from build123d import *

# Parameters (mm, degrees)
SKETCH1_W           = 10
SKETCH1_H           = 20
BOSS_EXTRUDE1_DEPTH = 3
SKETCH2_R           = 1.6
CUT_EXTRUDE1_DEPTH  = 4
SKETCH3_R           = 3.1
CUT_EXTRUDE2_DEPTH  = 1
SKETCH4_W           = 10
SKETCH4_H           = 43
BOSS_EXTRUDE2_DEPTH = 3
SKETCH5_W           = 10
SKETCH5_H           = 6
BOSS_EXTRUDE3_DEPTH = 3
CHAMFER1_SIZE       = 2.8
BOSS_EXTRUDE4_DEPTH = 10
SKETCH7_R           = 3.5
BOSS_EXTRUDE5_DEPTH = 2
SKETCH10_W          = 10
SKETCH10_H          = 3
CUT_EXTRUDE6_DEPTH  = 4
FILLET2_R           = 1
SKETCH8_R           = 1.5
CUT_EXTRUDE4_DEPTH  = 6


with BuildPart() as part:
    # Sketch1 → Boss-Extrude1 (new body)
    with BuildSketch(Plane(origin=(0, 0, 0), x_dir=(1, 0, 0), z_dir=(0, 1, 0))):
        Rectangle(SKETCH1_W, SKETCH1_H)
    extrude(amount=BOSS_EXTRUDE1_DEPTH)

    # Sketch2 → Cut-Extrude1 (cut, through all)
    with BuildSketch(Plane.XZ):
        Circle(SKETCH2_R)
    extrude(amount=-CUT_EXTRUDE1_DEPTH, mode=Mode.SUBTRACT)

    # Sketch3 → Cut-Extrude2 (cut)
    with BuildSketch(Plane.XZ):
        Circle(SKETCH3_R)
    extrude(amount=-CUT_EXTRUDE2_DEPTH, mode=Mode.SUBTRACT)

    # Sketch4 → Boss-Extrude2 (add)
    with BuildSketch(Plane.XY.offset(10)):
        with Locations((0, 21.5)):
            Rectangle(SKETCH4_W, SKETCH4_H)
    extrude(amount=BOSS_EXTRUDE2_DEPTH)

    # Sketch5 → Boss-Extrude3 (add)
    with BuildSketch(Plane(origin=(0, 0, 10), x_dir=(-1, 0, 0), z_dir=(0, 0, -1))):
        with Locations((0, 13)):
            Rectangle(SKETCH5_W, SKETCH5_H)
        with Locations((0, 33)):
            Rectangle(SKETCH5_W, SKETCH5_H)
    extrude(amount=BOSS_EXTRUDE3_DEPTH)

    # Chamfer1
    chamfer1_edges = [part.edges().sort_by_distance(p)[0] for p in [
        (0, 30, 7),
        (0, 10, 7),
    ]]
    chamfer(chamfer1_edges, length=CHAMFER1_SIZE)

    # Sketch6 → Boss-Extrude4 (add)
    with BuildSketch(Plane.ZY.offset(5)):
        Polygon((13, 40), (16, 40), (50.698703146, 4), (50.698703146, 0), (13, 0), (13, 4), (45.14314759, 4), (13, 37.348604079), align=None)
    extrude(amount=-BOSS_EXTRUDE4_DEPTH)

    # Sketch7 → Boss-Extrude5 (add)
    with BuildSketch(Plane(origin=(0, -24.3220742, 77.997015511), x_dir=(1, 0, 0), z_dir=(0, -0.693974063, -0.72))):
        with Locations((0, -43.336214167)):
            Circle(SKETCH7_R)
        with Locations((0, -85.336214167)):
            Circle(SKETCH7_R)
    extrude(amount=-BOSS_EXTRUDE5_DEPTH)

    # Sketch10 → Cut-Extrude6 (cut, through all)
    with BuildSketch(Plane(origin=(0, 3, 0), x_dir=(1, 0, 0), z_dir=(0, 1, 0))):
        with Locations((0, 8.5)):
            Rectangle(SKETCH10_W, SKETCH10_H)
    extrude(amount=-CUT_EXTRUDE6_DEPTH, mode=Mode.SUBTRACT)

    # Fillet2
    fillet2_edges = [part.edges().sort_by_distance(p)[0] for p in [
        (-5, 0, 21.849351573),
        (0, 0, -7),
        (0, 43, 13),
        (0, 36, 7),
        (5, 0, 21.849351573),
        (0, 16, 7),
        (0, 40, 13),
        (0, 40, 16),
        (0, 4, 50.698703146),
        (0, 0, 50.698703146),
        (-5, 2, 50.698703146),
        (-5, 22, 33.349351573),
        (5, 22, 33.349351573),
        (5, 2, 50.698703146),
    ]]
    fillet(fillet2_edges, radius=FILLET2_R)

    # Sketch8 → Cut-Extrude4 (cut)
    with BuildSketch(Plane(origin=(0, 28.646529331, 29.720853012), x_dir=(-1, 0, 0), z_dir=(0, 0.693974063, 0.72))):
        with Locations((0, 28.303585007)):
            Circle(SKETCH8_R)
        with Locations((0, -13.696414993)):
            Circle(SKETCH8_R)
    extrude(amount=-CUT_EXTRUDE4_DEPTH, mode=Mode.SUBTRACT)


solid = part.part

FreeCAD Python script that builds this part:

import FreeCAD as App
import Part
import Sketcher
from FreeCAD import Vector
Q = App.Units.Quantity


def edges_at(feature, points):
    """Names of the edges that pass closest to the given points."""
    edges = feature.Shape.Edges
    near = lambda p: min(range(len(edges)), key=lambda i: edges[i].distToShape(Part.Vertex(*p))[0])
    return sorted({f"Edge{near(p) + 1}" for p in points})

doc = App.newDocument("Part")
body = doc.addObject("PartDesign::Body", "Body")

sketch1 = body.newObject("Sketcher::SketchObject", "Sketch")
sketch1.AttachmentSupport = (doc.getObject("XZ_Plane"), [""])
sketch1.MapMode = "FlatFace"
sketch1.addGeometry([
    Part.LineSegment(Vector(-5, -10, 0), Vector(-5, 10, 0)),
    Part.LineSegment(Vector(-5, 10, 0), Vector(5, 10, 0)),
    Part.LineSegment(Vector(5, 10, 0), Vector(5, -10, 0)),
    Part.LineSegment(Vector(5, -10, 0), Vector(-5, -10, 0)),
], False)
sketch1.addConstraint([
    Sketcher.Constraint("Coincident", 0, 2, 1, 1),
    Sketcher.Constraint("Coincident", 1, 2, 2, 1),
    Sketcher.Constraint("Coincident", 2, 2, 3, 1),
    Sketcher.Constraint("Coincident", 3, 2, 0, 1),
    Sketcher.Constraint("Vertical", 0),
    Sketcher.Constraint("Horizontal", 1),
    Sketcher.Constraint("Vertical", 2),
    Sketcher.Constraint("Horizontal", 3),
    Sketcher.Constraint("Symmetric", 0, 2, 2, 2, -1, 1),
    Sketcher.Constraint("DistanceX", 1, 1, 1, 2, Q("10 mm")),
    Sketcher.Constraint("DistanceY", 0, 1, 0, 2, Q("20 mm")),
])
pad1 = body.newObject("PartDesign::Pad", "Pad")
pad1.Profile = sketch1
pad1.Length = 3
pad1.Reversed = True

sketch2 = body.newObject("Sketcher::SketchObject", "Sketch001")
sketch2.AttachmentSupport = (doc.getObject("XZ_Plane"), [""])
sketch2.MapMode = "FlatFace"
sketch2.addGeometry(Part.Circle(Vector(0, 0, 0), Vector(0, 0, 1), 1.6), False)
sketch2.addConstraint([
    Sketcher.Constraint("Coincident", 0, 3, -1, 1),
    Sketcher.Constraint("Diameter", 0, Q("3.2 mm")),
])
pocket1 = body.newObject("PartDesign::Pocket", "Pocket")
pocket1.Profile = sketch2
pocket1.Type = "ThroughAll"

sketch3 = body.newObject("Sketcher::SketchObject", "Sketch002")
sketch3.AttachmentSupport = (doc.getObject("XZ_Plane"), [""])
sketch3.MapMode = "FlatFace"
sketch3.addGeometry(Part.Circle(Vector(0, 0, 0), Vector(0, 0, 1), 3.1), False)
sketch3.addConstraint([
    Sketcher.Constraint("Coincident", 0, 3, -1, 1),
    Sketcher.Constraint("Diameter", 0, Q("6.2 mm")),
])
pocket2 = body.newObject("PartDesign::Pocket", "Pocket001")
pocket2.Profile = sketch3
pocket2.Length = 1

sketch4 = body.newObject("Sketcher::SketchObject", "Sketch003")
sketch4.AttachmentSupport = (doc.getObject("XY_Plane"), [""])
sketch4.MapMode = "FlatFace"
sketch4.AttachmentOffset = App.Placement(Vector(0, 0, 10), App.Rotation())
sketch4.addGeometry([
    Part.LineSegment(Vector(-5, 43, 0), Vector(-5, 0, 0)),
    Part.LineSegment(Vector(-5, 0, 0), Vector(5, 0, 0)),
    Part.LineSegment(Vector(5, 0, 0), Vector(5, 43, 0)),
    Part.LineSegment(Vector(5, 43, 0), Vector(-5, 43, 0)),
], False)
sketch4.addConstraint([
    Sketcher.Constraint("Coincident", 0, 2, 1, 1),
    Sketcher.Constraint("Coincident", 1, 2, 2, 1),
    Sketcher.Constraint("Coincident", 2, 2, 3, 1),
    Sketcher.Constraint("Coincident", 3, 2, 0, 1),
    Sketcher.Constraint("Vertical", 0),
    Sketcher.Constraint("Horizontal", 1),
    Sketcher.Constraint("Vertical", 2),
    Sketcher.Constraint("Horizontal", 3),
    Sketcher.Constraint("Symmetric", 0, 2, 1, 2, -1, 1),
    Sketcher.Constraint("DistanceX", 1, 1, 1, 2, Q("10 mm")),
    Sketcher.Constraint("DistanceY", 0, 2, 0, 1, Q("43 mm")),
])
pad2 = body.newObject("PartDesign::Pad", "Pad001")
pad2.Profile = sketch4
pad2.Length = 3

sketch5 = body.newObject("Sketcher::SketchObject", "Sketch004")
sketch5.AttachmentSupport = (doc.getObject("XY_Plane"), [""])
sketch5.MapMode = "FlatFace"
sketch5.AttachmentOffset = App.Placement(Vector(0, 0, 10), App.Rotation())
sketch5.addGeometry([
    Part.LineSegment(Vector(5, 16, 0), Vector(5, 10, 0)),
    Part.LineSegment(Vector(5, 10, 0), Vector(-5, 10, 0)),
    Part.LineSegment(Vector(-5, 10, 0), Vector(-5, 16, 0)),
    Part.LineSegment(Vector(-5, 16, 0), Vector(5, 16, 0)),
    Part.LineSegment(Vector(5, 36, 0), Vector(5, 30, 0)),
    Part.LineSegment(Vector(5, 30, 0), Vector(-5, 30, 0)),
    Part.LineSegment(Vector(-5, 30, 0), Vector(-5, 36, 0)),
    Part.LineSegment(Vector(-5, 36, 0), Vector(5, 36, 0)),
], False)
sketch5.addConstraint([
    Sketcher.Constraint("Coincident", 0, 2, 1, 1),
    Sketcher.Constraint("Coincident", 1, 2, 2, 1),
    Sketcher.Constraint("Coincident", 2, 2, 3, 1),
    Sketcher.Constraint("Coincident", 3, 2, 0, 1),
    Sketcher.Constraint("Coincident", 4, 2, 5, 1),
    Sketcher.Constraint("Coincident", 5, 2, 6, 1),
    Sketcher.Constraint("Coincident", 6, 2, 7, 1),
    Sketcher.Constraint("Coincident", 7, 2, 4, 1),
    Sketcher.Constraint("Vertical", 0),
    Sketcher.Constraint("Horizontal", 1),
    Sketcher.Constraint("Vertical", 2),
    Sketcher.Constraint("Horizontal", 3),
    Sketcher.Constraint("Vertical", 4),
    Sketcher.Constraint("Horizontal", 5),
    Sketcher.Constraint("Vertical", 6),
    Sketcher.Constraint("Horizontal", 7),
    Sketcher.Constraint("Vertical", 3, 2, 4, 2),
    Sketcher.Constraint("Vertical", 2, 2, 5, 2),
    Sketcher.Constraint("Equal", 2, 4),
    Sketcher.Constraint("DistanceX", 1, 2, 1, 1, Q("10 mm")),
    Sketcher.Constraint("DistanceY", 0, 2, 0, 1, Q("6 mm")),
    Sketcher.Constraint("DistanceX", -1, 1, 0, 2, Q("5 mm")),
    Sketcher.Constraint("DistanceY", -1, 1, 0, 2, Q("10 mm")),
    Sketcher.Constraint("DistanceY", -1, 1, 4, 2, Q("30 mm")),
])
pad3 = body.newObject("PartDesign::Pad", "Pad002")
pad3.Profile = sketch5
pad3.Length = 3
pad3.Reversed = True
doc.recompute()

chamfer = body.newObject("PartDesign::Chamfer", "Chamfer")
chamfer.Base = (pad3, edges_at(pad3, [(0, 30, 7), (0, 10, 7)]))
chamfer.Size = 2.8

sketch6 = body.newObject("Sketcher::SketchObject", "Sketch005")
sketch6.AttachmentSupport = (doc.getObject("YZ_Plane"), [""])
sketch6.MapMode = "FlatFace"
sketch6.AttachmentOffset = App.Placement(Vector(0, 0, -5), App.Rotation())
sketch6.addGeometry([
    Part.LineSegment(Vector(40, 16, 0), Vector(40, 13, 0)),
    Part.LineSegment(Vector(40, 13, 0), Vector(37.3, 13, 0)),
    Part.LineSegment(Vector(37.3, 13, 0), Vector(4, 45.1, 0)),
    Part.LineSegment(Vector(4, 45.1, 0), Vector(4, 13, 0)),
    Part.LineSegment(Vector(4, 13, 0), Vector(0, 13, 0)),
    Part.LineSegment(Vector(0, 13, 0), Vector(0, 50.7, 0)),
    Part.LineSegment(Vector(0, 50.7, 0), Vector(4, 50.7, 0)),
    Part.LineSegment(Vector(4, 50.7, 0), Vector(40, 16, 0)),
], False)
sketch6.addConstraint([
    Sketcher.Constraint("Coincident", 0, 2, 1, 1),
    Sketcher.Constraint("Coincident", 1, 2, 2, 1),
    Sketcher.Constraint("Coincident", 2, 2, 3, 1),
    Sketcher.Constraint("Coincident", 3, 2, 4, 1),
    Sketcher.Constraint("Coincident", 4, 2, 5, 1),
    Sketcher.Constraint("Coincident", 5, 2, 6, 1),
    Sketcher.Constraint("Coincident", 6, 2, 7, 1),
    Sketcher.Constraint("Coincident", 7, 2, 0, 1),
    Sketcher.Constraint("Vertical", 0),
    Sketcher.Constraint("Horizontal", 1),
    Sketcher.Constraint("Vertical", 3),
    Sketcher.Constraint("Horizontal", 4),
    Sketcher.Constraint("Vertical", 5),
    Sketcher.Constraint("Horizontal", 6),
    Sketcher.Constraint("PointOnObject", 4, 2, -2),
    Sketcher.Constraint("Parallel", 2, 7),
    Sketcher.Constraint("Horizontal", 1, 2, 3, 2),
    Sketcher.Constraint("Vertical", 3, 2, 6, 2),
    Sketcher.Constraint("DistanceX", 4, 2, 4, 1, Q("4 mm")),
    Sketcher.Constraint("DistanceY", 0, 2, 0, 1, Q("3 mm")),
    Sketcher.Constraint("Distance", 7, Q("50 mm")),
    Sketcher.Constraint("DistanceX", -1, 1, 0, 2, Q("40 mm")),
    Sketcher.Constraint("DistanceY", -1, 1, 0, 2, Q("13 mm")),
    Sketcher.Constraint("DistanceX", 1, 2, 1, 1, Q("2.651396 mm")),
])
pad4 = body.newObject("PartDesign::Pad", "Pad003")
pad4.Profile = sketch6
pad4.Length = 10

sketch7 = body.newObject("Sketcher::SketchObject", "Sketch006")
sketch7.Placement = App.Placement(Vector(0, -24.322074, 77.997016), App.Rotation(Vector(1, 0, 0), Vector(0, -0.72, 0.693974063), Vector(0, -0.693974063, -0.72), "ZXY"))
sketch7.addGeometry([
    Part.Circle(Vector(0, -43.3, 0), Vector(0, 0, 1), 3.5),
    Part.Circle(Vector(0, -85.3, 0), Vector(0, 0, 1), 3.5),
], False)
sketch7.addConstraint([
    Sketcher.Constraint("Equal", 0, 1),
    Sketcher.Constraint("PointOnObject", 0, 3, -2),
    Sketcher.Constraint("PointOnObject", 1, 3, -2),
    Sketcher.Constraint("Diameter", 0, Q("7 mm")),
    Sketcher.Constraint("DistanceY", 1, 3, 0, 3, Q("42 mm")),
    Sketcher.Constraint("DistanceY", 0, 3, -1, 1, Q("43.336214 mm")),
])
pad5 = body.newObject("PartDesign::Pad", "Pad004")
pad5.Profile = sketch7
pad5.Length = 2
pad5.Reversed = True

sketch8 = body.newObject("Sketcher::SketchObject", "Sketch007")
sketch8.AttachmentSupport = (doc.getObject("XZ_Plane"), [""])
sketch8.MapMode = "FlatFace"
sketch8.AttachmentOffset = App.Placement(Vector(0, 0, -3), App.Rotation())
sketch8.addGeometry([
    Part.LineSegment(Vector(-5, -10, 0), Vector(-5, -7, 0)),
    Part.LineSegment(Vector(-5, -7, 0), Vector(5, -7, 0)),
    Part.LineSegment(Vector(5, -7, 0), Vector(5, -10, 0)),
    Part.LineSegment(Vector(5, -10, 0), Vector(-5, -10, 0)),
], False)
sketch8.addConstraint([
    Sketcher.Constraint("Coincident", 0, 2, 1, 1),
    Sketcher.Constraint("Coincident", 1, 2, 2, 1),
    Sketcher.Constraint("Coincident", 2, 2, 3, 1),
    Sketcher.Constraint("Coincident", 3, 2, 0, 1),
    Sketcher.Constraint("Vertical", 0),
    Sketcher.Constraint("Horizontal", 1),
    Sketcher.Constraint("Vertical", 2),
    Sketcher.Constraint("Horizontal", 3),
    Sketcher.Constraint("DistanceX", 1, 1, 1, 2, Q("10 mm")),
    Sketcher.Constraint("DistanceY", 0, 1, 0, 2, Q("3 mm")),
    Sketcher.Constraint("DistanceX", 0, 2, -1, 1, Q("5 mm")),
    Sketcher.Constraint("DistanceY", 0, 2, -1, 1, Q("7 mm")),
])
pocket3 = body.newObject("PartDesign::Pocket", "Pocket002")
pocket3.Profile = sketch8
pocket3.Type = "ThroughAll"
pocket3.Reversed = True
doc.recompute()

fillet = body.newObject("PartDesign::Fillet", "Fillet")
fillet.Base = (pocket3, edges_at(pocket3, [
    (-5, 0, 21.849),
    (0, 0, -7),
    (0, 43, 13),
    (0, 36, 7),
    (5, 0, 21.849),
    (0, 16, 7),
    (0, 40, 13),
    (0, 40, 16),
    (0, 4, 50.699),
    (0, 0, 50.699),
    (-5, 2, 50.699),
    (-5, 22, 33.349),
    (5, 22, 33.349),
    (5, 2, 50.699),
]))
fillet.Radius = 1

sketch9 = body.newObject("Sketcher::SketchObject", "Sketch008")
sketch9.Placement = App.Placement(Vector(0, 28.646529, 29.720853), App.Rotation(Vector(-1, 0, 0), Vector(0, -0.72, 0.693974063), Vector(0, 0.693974063, 0.72), "ZXY"))
sketch9.addGeometry([
    Part.Circle(Vector(0, 28.3, 0), Vector(0, 0, 1), 1.5),
    Part.Circle(Vector(0, -13.7, 0), Vector(0, 0, 1), 1.5),
], False)
sketch9.addConstraint([
    Sketcher.Constraint("Equal", 0, 1),
    Sketcher.Constraint("PointOnObject", 0, 3, -2),
    Sketcher.Constraint("PointOnObject", 1, 3, -2),
    Sketcher.Constraint("Diameter", 0, Q("3 mm")),
    Sketcher.Constraint("DistanceY", 1, 3, 0, 3, Q("42 mm")),
    Sketcher.Constraint("DistanceY", -1, 1, 0, 3, Q("28.303585 mm")),
])
pocket4 = body.newObject("PartDesign::Pocket", "Pocket003")
pocket4.Profile = sketch9
pocket4.Length = 6

doc.recompute()
